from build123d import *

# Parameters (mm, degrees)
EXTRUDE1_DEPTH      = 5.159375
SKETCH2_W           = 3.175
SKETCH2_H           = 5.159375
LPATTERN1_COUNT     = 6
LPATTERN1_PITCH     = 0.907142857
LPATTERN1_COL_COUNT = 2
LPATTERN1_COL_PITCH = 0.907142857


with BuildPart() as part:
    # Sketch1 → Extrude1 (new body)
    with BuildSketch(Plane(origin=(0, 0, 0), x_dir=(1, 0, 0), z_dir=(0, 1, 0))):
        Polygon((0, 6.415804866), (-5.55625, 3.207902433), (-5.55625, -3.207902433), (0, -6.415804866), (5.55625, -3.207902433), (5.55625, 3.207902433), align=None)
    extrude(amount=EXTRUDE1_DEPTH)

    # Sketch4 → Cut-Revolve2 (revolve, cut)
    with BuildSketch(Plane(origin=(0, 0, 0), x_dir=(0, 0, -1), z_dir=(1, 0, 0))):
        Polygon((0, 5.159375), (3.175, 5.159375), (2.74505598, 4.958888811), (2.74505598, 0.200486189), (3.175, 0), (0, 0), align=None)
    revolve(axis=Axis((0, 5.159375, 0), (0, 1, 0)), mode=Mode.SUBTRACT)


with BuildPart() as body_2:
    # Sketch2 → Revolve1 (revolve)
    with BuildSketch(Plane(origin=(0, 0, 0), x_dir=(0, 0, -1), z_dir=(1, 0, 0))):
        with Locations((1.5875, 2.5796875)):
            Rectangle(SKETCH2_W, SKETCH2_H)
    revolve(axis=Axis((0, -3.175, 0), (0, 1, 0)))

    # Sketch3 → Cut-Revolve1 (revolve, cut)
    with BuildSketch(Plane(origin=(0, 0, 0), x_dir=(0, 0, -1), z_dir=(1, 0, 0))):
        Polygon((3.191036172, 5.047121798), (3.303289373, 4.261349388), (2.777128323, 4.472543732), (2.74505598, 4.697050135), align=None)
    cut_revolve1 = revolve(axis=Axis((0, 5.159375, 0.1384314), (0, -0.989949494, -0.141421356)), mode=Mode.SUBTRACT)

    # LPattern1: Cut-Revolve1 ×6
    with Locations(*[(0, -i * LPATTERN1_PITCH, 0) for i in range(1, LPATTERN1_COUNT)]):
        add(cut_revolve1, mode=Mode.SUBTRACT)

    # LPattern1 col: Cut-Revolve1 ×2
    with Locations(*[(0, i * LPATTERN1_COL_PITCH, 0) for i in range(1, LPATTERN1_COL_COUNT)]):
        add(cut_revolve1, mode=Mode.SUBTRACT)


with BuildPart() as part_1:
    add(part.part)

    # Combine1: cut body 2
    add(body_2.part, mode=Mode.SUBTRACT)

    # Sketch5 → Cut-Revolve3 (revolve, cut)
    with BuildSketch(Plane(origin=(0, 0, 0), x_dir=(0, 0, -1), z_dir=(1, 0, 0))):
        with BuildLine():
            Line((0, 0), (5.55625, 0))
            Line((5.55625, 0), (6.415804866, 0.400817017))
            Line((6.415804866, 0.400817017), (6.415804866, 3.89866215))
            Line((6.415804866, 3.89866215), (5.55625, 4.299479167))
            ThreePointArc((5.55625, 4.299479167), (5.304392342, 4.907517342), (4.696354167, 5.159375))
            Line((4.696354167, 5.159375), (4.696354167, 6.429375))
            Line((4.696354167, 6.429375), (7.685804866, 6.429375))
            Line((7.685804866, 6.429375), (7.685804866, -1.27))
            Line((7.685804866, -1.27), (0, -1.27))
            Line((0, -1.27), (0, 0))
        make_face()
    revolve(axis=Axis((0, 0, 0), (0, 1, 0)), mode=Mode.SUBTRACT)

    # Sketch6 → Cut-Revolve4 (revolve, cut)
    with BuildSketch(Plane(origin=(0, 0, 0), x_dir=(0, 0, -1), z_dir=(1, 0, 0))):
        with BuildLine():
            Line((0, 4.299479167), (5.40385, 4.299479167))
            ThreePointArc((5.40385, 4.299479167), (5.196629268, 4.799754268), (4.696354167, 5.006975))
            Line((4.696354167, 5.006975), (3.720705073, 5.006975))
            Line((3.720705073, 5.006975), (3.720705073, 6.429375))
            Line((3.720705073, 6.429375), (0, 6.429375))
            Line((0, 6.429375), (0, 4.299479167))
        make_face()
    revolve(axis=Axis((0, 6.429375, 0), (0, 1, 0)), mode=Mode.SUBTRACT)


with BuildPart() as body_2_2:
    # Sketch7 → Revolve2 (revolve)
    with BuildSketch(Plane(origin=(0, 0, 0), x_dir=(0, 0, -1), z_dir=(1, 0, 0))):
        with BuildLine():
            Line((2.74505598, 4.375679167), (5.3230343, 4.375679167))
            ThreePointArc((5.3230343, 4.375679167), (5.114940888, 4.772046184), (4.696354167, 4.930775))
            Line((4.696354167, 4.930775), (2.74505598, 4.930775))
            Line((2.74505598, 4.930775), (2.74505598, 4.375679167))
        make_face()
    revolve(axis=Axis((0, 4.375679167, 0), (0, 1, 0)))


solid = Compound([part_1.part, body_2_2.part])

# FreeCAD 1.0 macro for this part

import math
import FreeCAD as App
import Part
import Sketcher
Q = App.Units.Quantity

doc = App.newDocument("Part")
body = doc.addObject("PartDesign::Body", "Body")

# Sketch on XZ plane
sketch1 = doc.addObject("Sketcher::SketchObject", "Sketch")
body.addObject(sketch1)
sketch1.AttachmentSupport = (doc.XZ_Plane, [""])
sketch1.MapMode = "FlatFace"
sketch1.addGeometry([
    Part.LineSegment(App.Vector(0, -6, 0), App.Vector(-6, -3, 0)),  # 0
    Part.LineSegment(App.Vector(-6, -3, 0), App.Vector(-6, 3, 0)),  # 1
    Part.LineSegment(App.Vector(-6, 3, 0), App.Vector(0, 6, 0)),  # 2
    Part.LineSegment(App.Vector(0, 6, 0), App.Vector(6, 3, 0)),  # 3
    Part.LineSegment(App.Vector(6, 3, 0), App.Vector(6, -3, 0)),  # 4
    Part.LineSegment(App.Vector(6, -3, 0), App.Vector(0, -6, 0)),  # 5
], False)
sketch1.addConstraint([
    Sketcher.Constraint("Coincident", 0, 2, 1, 1),
    Sketcher.Constraint("Coincident", 1, 2, 2, 1),
    Sketcher.Constraint("Coincident", 2, 2, 3, 1),
    Sketcher.Constraint("Coincident", 3, 2, 4, 1),
    Sketcher.Constraint("Coincident", 4, 2, 5, 1),
    Sketcher.Constraint("Coincident", 5, 2, 0, 1),
    Sketcher.Constraint("Vertical", 1),
    Sketcher.Constraint("Vertical", 4),
    Sketcher.Constraint("Symmetric", 0, 2, 3, 2, -1, 1),
    Sketcher.Constraint("Symmetric", 2, 2, 5, 2, -1, 1),
    Sketcher.Constraint("PointOnObject", 2, 2, -2),
    Sketcher.Constraint("Parallel", 2, 5),
    Sketcher.Constraint("Horizontal", 1, 2, 3, 2),
    Sketcher.Constraint("Angle", 0, Q("150 deg")),
    Sketcher.Constraint("DistanceX", 0, 2, -1, 1, Q("0.21875 in")),
    Sketcher.Constraint("DistanceY", 1, 1, 1, 2, Q("6.415805 mm")),
])
pad1 = doc.addObject("PartDesign::Pad", "Pad")
body.addObject(pad1)
pad1.Profile = sketch1
pad1.Length = Q("0.203125 in")
pad1.Reversed = True

# Sketch on YZ plane
sketch2 = doc.addObject("Sketcher::SketchObject", "Sketch001")
body.addObject(sketch2)
sketch2.AttachmentSupport = (doc.YZ_Plane, [""])
sketch2.MapMode = "FlatFace"
sketch2.addGeometry([
    Part.LineSegment(App.Vector(5.16, -3.17, 0), App.Vector(5.16, 0, 0)),  # 0
    Part.LineSegment(App.Vector(5.16, 0, 0), App.Vector(0, 0, 0)),  # 1
    Part.LineSegment(App.Vector(0, 0, 0), App.Vector(0, -3.17, 0)),  # 2
    Part.LineSegment(App.Vector(0, -3.17, 0), App.Vector(0.2, -2.75, 0)),  # 3
    Part.LineSegment(App.Vector(0.2, -2.75, 0), App.Vector(4.96, -2.75, 0)),  # 4
    Part.LineSegment(App.Vector(4.96, -2.75, 0), App.Vector(5.16, -3.17, 0)),  # 5
], False)
sketch2.addConstraint([
    Sketcher.Constraint("Coincident", 0, 2, 1, 1),
    Sketcher.Constraint("Coincident", 1, 2, 2, 1),
    Sketcher.Constraint("Coincident", 2, 2, 3, 1),
    Sketcher.Constraint("Coincident", 3, 2, 4, 1),
    Sketcher.Constraint("Coincident", 4, 2, 5, 1),
    Sketcher.Constraint("Coincident", 5, 2, 0, 1),
    Sketcher.Constraint("Vertical", 0),
    Sketcher.Constraint("Horizontal", 1),
    Sketcher.Constraint("Vertical", 2),
    Sketcher.Constraint("Horizontal", 4),
    Sketcher.Constraint("Coincident", 1, 2, -1, 1),
    Sketcher.Constraint("Horizontal", 2, 2, 5, 2),
    Sketcher.Constraint("Equal", 3, 5),
    Sketcher.Constraint("Angle", 3, Q("65 deg")),
    Sketcher.Constraint("DistanceX", 1, 2, 1, 1, Q("0.203125 in")),
    Sketcher.Constraint("DistanceY", 0, 1, 0, 2, Q("0.125 in")),
    Sketcher.Constraint("Distance", 3, Q("0.474391 mm")),
])
groove = doc.addObject("PartDesign::Groove", "Groove")
body.addObject(groove)
groove.Profile = sketch2
groove.ReferenceAxis = (sketch2, ["H_Axis"])
groove.Angle = 360
body2 = doc.addObject("PartDesign::Body", "Body001")

# Sketch on YZ plane
sketch3 = doc.addObject("Sketcher::SketchObject", "Sketch002")
body2.addObject(sketch3)
sketch3.AttachmentSupport = (doc.getObject("YZ_Plane001"), [""])
sketch3.MapMode = "FlatFace"
sketch3.addGeometry([
    Part.LineSegment(App.Vector(5.2, 0, 0), App.Vector(0, 0, 0)),
    Part.LineSegment(App.Vector(0, 0, 0), App.Vector(0, -3.2, 0)),
    Part.LineSegment(App.Vector(0, -3.2, 0), App.Vector(5.2, -3.2, 0)),
    Part.LineSegment(App.Vector(5.2, -3.2, 0), App.Vector(5.2, 0, 0)),
], False)
sketch3.addConstraint([
    Sketcher.Constraint("Coincident", 0, 2, 1, 1),
    Sketcher.Constraint("Coincident", 1, 2, 2, 1),
    Sketcher.Constraint("Coincident", 2, 2, 3, 1),
    Sketcher.Constraint("Coincident", 3, 2, 0, 1),
    Sketcher.Constraint("Horizontal", 0),
    Sketcher.Constraint("Vertical", 1),
    Sketcher.Constraint("Horizontal", 2),
    Sketcher.Constraint("Vertical", 3),
    Sketcher.Constraint("Coincident", 0, 2, -1, 1),
    Sketcher.Constraint("DistanceX", 0, 2, 0, 1, Q("0.203125 in")),
    Sketcher.Constraint("DistanceY", 1, 2, 1, 1, Q("0.125 in")),
])
revolution = doc.addObject("PartDesign::Revolution", "Revolution")
body2.addObject(revolution)
revolution.Profile = sketch3
revolution.ReferenceAxis = (sketch3, ["H_Axis"])
revolution.Angle = 360

# Sketch on YZ plane
sketch4 = doc.addObject("Sketcher::SketchObject", "Sketch003")
body2.addObject(sketch4)
sketch4.AttachmentSupport = (doc.getObject("YZ_Plane001"), [""])
sketch4.MapMode = "FlatFace"
sketch4.addGeometry([
    Part.LineSegment(App.Vector(4.26, -3.3, 0), App.Vector(5.05, -3.19, 0)),
    Part.LineSegment(App.Vector(5.05, -3.19, 0), App.Vector(4.7, -2.75, 0)),
    Part.LineSegment(App.Vector(4.7, -2.75, 0), App.Vector(4.47, -2.78, 0)),
    Part.LineSegment(App.Vector(4.47, -2.78, 0), App.Vector(4.26, -3.3, 0)),
], False)
sketch4.addGeometry(Part.LineSegment(App.Vector(4.58, 0.06, 0), App.Vector(3.8, -0.06, 0)), True)  # axis
sketch4.addConstraint([
    Sketcher.Constraint("Coincident", 0, 2, 1, 1),
    Sketcher.Constraint("Coincident", 1, 2, 2, 1),
    Sketcher.Constraint("Coincident", 2, 2, 3, 1),
    Sketcher.Constraint("Coincident", 3, 2, 0, 1),
    Sketcher.Constraint("Parallel", 0, 2),
    Sketcher.Constraint("Parallel", 2, 4),
    Sketcher.Constraint("Equal", 1, 3),
    Sketcher.Constraint("Equal", 0, 4),
    Sketcher.Constraint("Distance", 0, Q("0.03125 in")),
    Sketcher.Constraint("DistanceX", 3, 2, 1, 2, Q("0.435701 mm")),
    Sketcher.Constraint("DistanceY", 2, 2, 4, 2, Q("2.721002 mm")),
    Sketcher.Constraint("DistanceX", -1, 1, 0, 2, Q("5.047122 mm")),
    Sketcher.Constraint("DistanceX", -1, 1, 1, 2, Q("4.69705 mm")),
    Sketcher.Constraint("DistanceY", 2, 2, -1, 1, Q("2.777128 mm")),
    Sketcher.Constraint("DistanceY", 3, 2, -1, 1, Q("3.303289 mm")),
    Sketcher.Constraint("DistanceX", -1, 1, 4, 1, Q("4.583241 mm")),
])
groove2 = doc.addObject("PartDesign::Groove", "Groove001")
body2.addObject(groove2)
groove2.Profile = sketch4
groove2.ReferenceAxis = (sketch4, ["Axis0"])
groove2.Angle = 360
doc.recompute()

linearpattern = doc.addObject("PartDesign::LinearPattern", "LinearPattern")
body2.addObject(linearpattern)
linearpattern.Originals = [groove2]
linearpattern.Direction = (doc.getObject("Y_Axis001"), [""])
linearpattern.Mode = "offset"
linearpattern.Offset = 0.907143
linearpattern.Occurrences = 6
linearpattern.Reversed = True
body2.Tip = linearpattern
doc.recompute()

linearpattern2 = doc.addObject("PartDesign::LinearPattern", "LinearPattern001")
body2.addObject(linearpattern2)
linearpattern2.Originals = [groove2]
linearpattern2.Direction = (doc.getObject("Y_Axis001"), [""])
linearpattern2.Mode = "offset"
linearpattern2.Offset = 0.907143
linearpattern2.Occurrences = 2
body2.Tip = linearpattern2
doc.recompute()

boolean = doc.addObject("PartDesign::Boolean", "Boolean")
body.addObject(boolean)
boolean.Type = "Cut"
boolean.addObjects([body2])

# Sketch on YZ plane
sketch5 = doc.addObject("Sketcher::SketchObject", "Sketch004")
body.addObject(sketch5)
sketch5.AttachmentSupport = (doc.YZ_Plane, [""])
sketch5.MapMode = "FlatFace"
sketch5.addGeometry([
    Part.LineSegment(App.Vector(0, -5.6, 0), App.Vector(0, 0, 0)),  # 0
    Part.LineSegment(App.Vector(0, 0, 0), App.Vector(-1.3, 0, 0)),  # 1
    Part.LineSegment(App.Vector(-1.3, 0, 0), App.Vector(-1.3, -7.7, 0)),  # 2
    Part.LineSegment(App.Vector(-1.3, -7.7, 0), App.Vector(6.4, -7.7, 0)),  # 3
    Part.LineSegment(App.Vector(6.4, -7.7, 0), App.Vector(6.4, -4.7, 0)),  # 4
    Part.LineSegment(App.Vector(6.4, -4.7, 0), App.Vector(5.2, -4.7, 0)),  # 5
    Part.ArcOfCircle(Part.Circle(App.Vector(4.3, -4.7, 0), App.Vector(0, 0, 1), 0.9), math.radians(-90), math.radians(0)),  # 6
    Part.LineSegment(App.Vector(4.3, -5.6, 0), App.Vector(3.9, -6.4, 0)),  # 7
    Part.LineSegment(App.Vector(3.9, -6.4, 0), App.Vector(0.4, -6.4, 0)),  # 8
    Part.LineSegment(App.Vector(0.4, -6.4, 0), App.Vector(0, -5.6, 0)),  # 9
], False)
sketch5.addConstraint([
    Sketcher.Constraint("Coincident", 0, 2, 1, 1),
    Sketcher.Constraint("Coincident", 1, 2, 2, 1),
    Sketcher.Constraint("Coincident", 2, 2, 3, 1),
    Sketcher.Constraint("Coincident", 3, 2, 4, 1),
    Sketcher.Constraint("Coincident", 4, 2, 5, 1),
    Sketcher.Constraint("Coincident", 5, 2, 6, 2),
    Sketcher.Constraint("Coincident", 6, 1, 7, 1),
    Sketcher.Constraint("Coincident", 7, 2, 8, 1),
    Sketcher.Constraint("Coincident", 8, 2, 9, 1),
    Sketcher.Constraint("Coincident", 9, 2, 0, 1),
    Sketcher.Constraint("Vertical", 0),
    Sketcher.Constraint("Horizontal", 1),
    Sketcher.Constraint("Vertical", 2),
    Sketcher.Constraint("Horizontal", 3),
    Sketcher.Constraint("Vertical", 4),
    Sketcher.Constraint("Horizontal", 5),
    Sketcher.Constraint("Horizontal", 8),
    Sketcher.Constraint("Coincident", 0, 2, -1, 1),
    Sketcher.Constraint("Horizontal", 6, 3, 4, 2),
    Sketcher.Constraint("Horizontal", 6, 1, 9, 2),
    Sketcher.Constraint("Equal", 1, 5),
    Sketcher.Constraint("Equal", 7, 9),
    Sketcher.Constraint("Angle", 7, Q("-115 deg")),
    Sketcher.Constraint("DistanceX", 1, 2, 1, 1, Q("0.05 in")),
    Sketcher.Constraint("DistanceY", 0, 1, 0, 2, Q("0.21875 in")),
    Sketcher.Constraint("DistanceY", 3, 2, 7, 2, Q("0.05 in")),
    Sketcher.Constraint("DistanceX", -1, 1, 5, 2, Q("0.203125 in")),
    Sketcher.Constraint("Radius", 6, Q("0.859896 mm")),
    Sketcher.Constraint("DistanceY", 4, 1, 4, 2, Q("2.989451 mm")),
    Sketcher.Constraint("DistanceX", 8, 2, 8, 1, Q("3.497845 mm")),
])
groove3 = doc.addObject("PartDesign::Groove", "Groove002")
body.addObject(groove3)
groove3.Profile = sketch5
groove3.ReferenceAxis = (sketch5, ["H_Axis"])
groove3.Angle = 360

# Sketch on YZ plane
sketch6 = doc.addObject("Sketcher::SketchObject", "Sketch005")
body.addObject(sketch6)
sketch6.AttachmentSupport = (doc.YZ_Plane, [""])
sketch6.MapMode = "FlatFace"
sketch6.addGeometry([
    Part.LineSegment(App.Vector(4.3, 0, 0), App.Vector(4.3, -5.4, 0)),  # 0
    Part.ArcOfCircle(Part.Circle(App.Vector(4.3, -4.7, 0), App.Vector(0, 0, 1), 0.7), math.radians(-90), math.radians(0)),  # 1
    Part.LineSegment(App.Vector(5, -4.7, 0), App.Vector(5, -3.7, 0)),  # 2
    Part.LineSegment(App.Vector(5, -3.7, 0), App.Vector(6.4, -3.7, 0)),  # 3
    Part.LineSegment(App.Vector(6.4, -3.7, 0), App.Vector(6.4, 0, 0)),  # 4
    Part.LineSegment(App.Vector(6.4, 0, 0), App.Vector(4.3, 0, 0)),  # 5
], False)
sketch6.addConstraint([
    Sketcher.Constraint("Coincident", 0, 2, 1, 1),
    Sketcher.Constraint("Tangent", 1, 2, 2, 1),
    Sketcher.Constraint("Coincident", 2, 2, 3, 1),
    Sketcher.Constraint("Coincident", 3, 2, 4, 1),
    Sketcher.Constraint("Coincident", 4, 2, 5, 1),
    Sketcher.Constraint("Coincident", 5, 2, 0, 1),
    Sketcher.Constraint("Vertical", 0),
    Sketcher.Constraint("Vertical", 2),
    Sketcher.Constraint("Horizontal", 3),
    Sketcher.Constraint("Vertical", 4),
    Sketcher.Constraint("Horizontal", 5),
    Sketcher.Constraint("PointOnObject", 4, 2, -1),
    Sketcher.Constraint("Vertical", 1, 3, 0, 2),
    Sketcher.Constraint("DistanceX", 3, 1, 3, 2, Q("0.056 in")),
    Sketcher.Constraint("Radius", 1, Q("0.707496 mm")),
    Sketcher.Constraint("DistanceY", 0, 2, 0, 1, Q("5.40385 mm")),
    Sketcher.Constraint("DistanceY", 2, 1, 2, 2, Q("0.975649 mm")),
    Sketcher.Constraint("DistanceX", -1, 1, 1, 3, Q("4.299479 mm")),
])
groove4 = doc.addObject("PartDesign::Groove", "Groove003")
body.addObject(groove4)
groove4.Profile = sketch6
groove4.ReferenceAxis = (sketch6, ["H_Axis"])
groove4.Angle = 360
body3 = doc.addObject("PartDesign::Body", "Body002")

# Sketch on YZ plane
sketch7 = doc.addObject("Sketcher::SketchObject", "Sketch006")
body3.addObject(sketch7)
sketch7.AttachmentSupport = (doc.getObject("YZ_Plane002"), [""])
sketch7.MapMode = "FlatFace"
sketch7.addGeometry([
    Part.LineSegment(App.Vector(4.4, -2.7, 0), App.Vector(4.4, -5.3, 0)),
    Part.ArcOfCircle(Part.Circle(App.Vector(4.3, -4.7, 0), App.Vector(0, 0, 1), 0.6), math.radians(-83), math.radians(0)),
    Part.LineSegment(App.Vector(4.9, -4.7, 0), App.Vector(4.9, -2.7, 0)),
    Part.LineSegment(App.Vector(4.9, -2.7, 0), App.Vector(4.4, -2.7, 0)),
], False)
sketch7.addConstraint([
    Sketcher.Constraint("Coincident", 0, 2, 1, 1),
    Sketcher.Constraint("Tangent", 1, 2, 2, 1),
    Sketcher.Constraint("Coincident", 2, 2, 3, 1),
    Sketcher.Constraint("Coincident", 3, 2, 0, 1),
    Sketcher.Constraint("Vertical", 0),
    Sketcher.Constraint("Vertical", 2),
    Sketcher.Constraint("Horizontal", 3),
    Sketcher.Constraint("DistanceX", 1, 3, 0, 2, Q("0.003 in")),
    Sketcher.Constraint("DistanceY", 2, 1, 2, 2, Q("1.951298 mm")),
    Sketcher.Constraint("Radius", 1, Q("0.631296 mm")),
    Sketcher.Constraint("DistanceX", -1, 1, 1, 3, Q("4.299479 mm")),
    Sketcher.Constraint("DistanceY", 1, 3, -1, 1, Q("4.696354 mm")),
])
revolution2 = doc.addObject("PartDesign::Revolution", "Revolution001")
body3.addObject(revolution2)
revolution2.Profile = sketch7
revolution2.ReferenceAxis = (sketch7, ["H_Axis"])
revolution2.Angle = 360

doc.recompute()
